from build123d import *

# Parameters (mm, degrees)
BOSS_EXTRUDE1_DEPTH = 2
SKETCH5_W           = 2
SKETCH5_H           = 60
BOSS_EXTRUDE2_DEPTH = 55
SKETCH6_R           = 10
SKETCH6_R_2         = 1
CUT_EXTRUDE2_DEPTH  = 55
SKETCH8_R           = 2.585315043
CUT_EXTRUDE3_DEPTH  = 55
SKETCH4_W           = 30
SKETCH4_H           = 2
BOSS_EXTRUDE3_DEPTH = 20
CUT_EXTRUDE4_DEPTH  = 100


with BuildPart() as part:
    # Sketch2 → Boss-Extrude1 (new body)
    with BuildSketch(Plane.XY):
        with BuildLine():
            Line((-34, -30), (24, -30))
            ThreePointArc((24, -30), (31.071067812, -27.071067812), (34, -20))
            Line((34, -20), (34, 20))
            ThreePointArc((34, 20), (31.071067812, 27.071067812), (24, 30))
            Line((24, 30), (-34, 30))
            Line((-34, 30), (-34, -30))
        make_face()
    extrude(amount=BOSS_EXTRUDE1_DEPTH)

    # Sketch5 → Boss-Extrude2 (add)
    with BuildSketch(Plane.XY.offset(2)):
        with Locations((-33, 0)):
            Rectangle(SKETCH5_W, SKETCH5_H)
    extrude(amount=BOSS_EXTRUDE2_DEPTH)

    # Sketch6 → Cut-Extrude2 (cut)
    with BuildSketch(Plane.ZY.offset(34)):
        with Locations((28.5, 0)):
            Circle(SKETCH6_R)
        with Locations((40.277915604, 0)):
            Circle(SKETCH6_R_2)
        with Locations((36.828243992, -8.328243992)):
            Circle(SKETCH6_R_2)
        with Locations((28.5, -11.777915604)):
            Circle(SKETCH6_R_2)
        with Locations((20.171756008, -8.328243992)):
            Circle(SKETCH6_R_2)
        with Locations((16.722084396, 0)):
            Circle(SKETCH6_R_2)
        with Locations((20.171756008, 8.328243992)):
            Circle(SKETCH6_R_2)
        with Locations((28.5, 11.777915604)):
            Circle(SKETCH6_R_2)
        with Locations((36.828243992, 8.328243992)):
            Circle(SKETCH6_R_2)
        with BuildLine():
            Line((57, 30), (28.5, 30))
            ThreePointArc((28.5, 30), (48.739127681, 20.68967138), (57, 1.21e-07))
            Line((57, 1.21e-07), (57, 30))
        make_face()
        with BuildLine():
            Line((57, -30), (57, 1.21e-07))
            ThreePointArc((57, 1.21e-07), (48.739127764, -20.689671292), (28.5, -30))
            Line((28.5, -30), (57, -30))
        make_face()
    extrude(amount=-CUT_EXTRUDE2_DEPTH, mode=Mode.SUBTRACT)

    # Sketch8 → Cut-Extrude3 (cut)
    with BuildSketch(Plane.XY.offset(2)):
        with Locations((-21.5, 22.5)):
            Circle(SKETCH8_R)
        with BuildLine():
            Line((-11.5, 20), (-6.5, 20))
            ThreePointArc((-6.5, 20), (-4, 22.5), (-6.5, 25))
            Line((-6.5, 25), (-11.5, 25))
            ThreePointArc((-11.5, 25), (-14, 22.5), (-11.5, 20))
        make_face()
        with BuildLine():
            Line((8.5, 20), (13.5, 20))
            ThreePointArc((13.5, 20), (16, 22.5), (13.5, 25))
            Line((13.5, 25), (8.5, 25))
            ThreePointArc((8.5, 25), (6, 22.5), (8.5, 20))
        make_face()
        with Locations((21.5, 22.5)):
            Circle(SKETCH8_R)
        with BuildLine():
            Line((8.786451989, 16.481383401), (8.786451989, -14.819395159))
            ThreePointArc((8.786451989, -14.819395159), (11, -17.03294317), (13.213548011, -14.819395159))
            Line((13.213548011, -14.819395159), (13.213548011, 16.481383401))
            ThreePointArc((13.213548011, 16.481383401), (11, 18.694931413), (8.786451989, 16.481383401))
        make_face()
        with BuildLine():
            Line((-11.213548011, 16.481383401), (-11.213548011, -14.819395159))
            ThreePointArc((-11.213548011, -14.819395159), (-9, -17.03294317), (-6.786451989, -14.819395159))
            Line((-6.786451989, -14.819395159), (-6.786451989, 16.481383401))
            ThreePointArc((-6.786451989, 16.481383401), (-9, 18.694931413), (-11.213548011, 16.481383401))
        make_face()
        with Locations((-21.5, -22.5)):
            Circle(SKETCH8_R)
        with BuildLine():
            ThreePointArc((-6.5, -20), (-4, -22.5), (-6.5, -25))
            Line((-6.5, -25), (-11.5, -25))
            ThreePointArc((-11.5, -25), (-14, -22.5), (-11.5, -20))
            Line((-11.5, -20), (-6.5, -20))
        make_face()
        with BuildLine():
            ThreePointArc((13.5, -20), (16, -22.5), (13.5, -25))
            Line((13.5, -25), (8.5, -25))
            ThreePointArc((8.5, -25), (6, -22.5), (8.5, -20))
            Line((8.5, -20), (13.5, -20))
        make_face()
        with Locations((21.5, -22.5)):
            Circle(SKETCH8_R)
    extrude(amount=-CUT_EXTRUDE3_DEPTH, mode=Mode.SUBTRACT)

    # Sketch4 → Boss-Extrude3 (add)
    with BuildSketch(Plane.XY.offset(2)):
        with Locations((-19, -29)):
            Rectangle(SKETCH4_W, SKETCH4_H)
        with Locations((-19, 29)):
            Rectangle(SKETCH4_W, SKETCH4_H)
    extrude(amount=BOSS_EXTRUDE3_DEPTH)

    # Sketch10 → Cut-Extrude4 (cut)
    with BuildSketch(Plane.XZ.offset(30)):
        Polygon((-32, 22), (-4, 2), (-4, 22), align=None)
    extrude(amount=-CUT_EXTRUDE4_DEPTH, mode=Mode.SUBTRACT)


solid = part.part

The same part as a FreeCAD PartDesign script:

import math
import FreeCAD as App
import Part
import Sketcher

V = App.Vector

doc = App.newDocument("Part")
body = doc.addObject("PartDesign::Body", "Body")

# Sketch on XY plane
sketch1 = body.newObject("Sketcher::SketchObject", "Sketch")
sketch1.AttachmentSupport = (doc.getObject("XY_Plane"), [""])
sketch1.MapMode = "FlatFace"
sketch1.addGeometry([
    Part.LineSegment(V(-34, -30, 0), V(24, -30, 0)),  # 0
    Part.ArcOfCircle(Part.Circle(V(24, -20, 0), V(0, 0, 1), 10), math.radians(-90), math.radians(0)),  # 1
    Part.LineSegment(V(34, -20, 0), V(34, 20, 0)),  # 2
    Part.ArcOfCircle(Part.Circle(V(24, 20, 0), V(0, 0, 1), 10), math.radians(0), math.radians(90)),  # 3
    Part.LineSegment(V(24, 30, 0), V(-34, 30, 0)),  # 4
    Part.LineSegment(V(-34, 30, 0), V(-34, -30, 0)),  # 5
], False)
sketch1.addConstraint([
    Sketcher.Constraint("Tangent", 0, 2, 1, 1),
    Sketcher.Constraint("Tangent", 1, 2, 2, 1),
    Sketcher.Constraint("Tangent", 2, 2, 3, 1),
    Sketcher.Constraint("Tangent", 3, 2, 4, 1),
    Sketcher.Constraint("Coincident", 4, 2, 5, 1),
    Sketcher.Constraint("Coincident", 5, 2, 0, 1),
    Sketcher.Constraint("Horizontal", 0),
    Sketcher.Constraint("Vertical", 2),
    Sketcher.Constraint("Horizontal", 4),
    Sketcher.Constraint("Vertical", 5),
    Sketcher.Constraint("Equal", 1, 3),
    Sketcher.Constraint("Radius", 1, 10.0),
    Sketcher.Constraint("DistanceX", 0, 1, 0, 2, 58.0),
    Sketcher.Constraint("DistanceY", 2, 1, 2, 2, 40.0),
    Sketcher.Constraint("DistanceX", -1, 1, 1, 3, 24.0),
    Sketcher.Constraint("DistanceY", 1, 3, -1, 1, 20.0),
])
pad1 = body.newObject("PartDesign::Pad", "Pad")
pad1.Profile = sketch1
pad1.Length = 2

# Sketch on XY plane
sketch2 = body.newObject("Sketcher::SketchObject", "Sketch001")
sketch2.AttachmentSupport = (doc.getObject("XY_Plane"), [""])
sketch2.MapMode = "FlatFace"
sketch2.AttachmentOffset = App.Placement(V(0, 0, 2), App.Rotation())
sketch2.addGeometry([
    Part.LineSegment(V(-34, 30, 0), V(-34, -30, 0)),
    Part.LineSegment(V(-34, -30, 0), V(-32, -30, 0)),
    Part.LineSegment(V(-32, -30, 0), V(-32, 30, 0)),
    Part.LineSegment(V(-32, 30, 0), V(-34, 30, 0)),
], False)
sketch2.addConstraint([
    Sketcher.Constraint("Coincident", 0, 2, 1, 1),
    Sketcher.Constraint("Coincident", 1, 2, 2, 1),
    Sketcher.Constraint("Coincident", 2, 2, 3, 1),
    Sketcher.Constraint("Coincident", 3, 2, 0, 1),
    Sketcher.Constraint("Vertical", 0),
    Sketcher.Constraint("Horizontal", 1),
    Sketcher.Constraint("Vertical", 2),
    Sketcher.Constraint("Horizontal", 3),
    Sketcher.Constraint("DistanceX", 1, 1, 1, 2, 2.0),
    Sketcher.Constraint("DistanceY", 0, 2, 0, 1, 60.0),
    Sketcher.Constraint("DistanceX", 0, 2, -1, 1, 34.0),
    Sketcher.Constraint("DistanceY", 0, 2, -1, 1, 30.0),
])
pad2 = body.newObject("PartDesign::Pad", "Pad001")
pad2.Profile = sketch2
pad2.Length = 55

# Sketch on YZ plane
sketch3 = body.newObject("Sketcher::SketchObject", "Sketch002")
sketch3.AttachmentSupport = (doc.getObject("YZ_Plane"), [""])
sketch3.MapMode = "FlatFace"
sketch3.AttachmentOffset = App.Placement(V(0, 0, -34), App.Rotation())
sketch3.addGeometry([
    Part.Circle(V(0, 28.5, 0), V(0, 0, 1), 10),  # 0
    Part.Circle(V(0, 40.3, 0), V(0, 0, 1), 1),  # 1
    Part.Circle(V(-8.3, 36.8, 0), V(0, 0, 1), 1),  # 2
    Part.Circle(V(-11.8, 28.5, 0), V(0, 0, 1), 1),  # 3
    Part.Circle(V(-8.3, 20.2, 0), V(0, 0, 1), 1),  # 4
    Part.Circle(V(0, 16.7, 0), V(0, 0, 1), 1),  # 5
    Part.Circle(V(8.3, 20.2, 0), V(0, 0, 1), 1),  # 6
    Part.Circle(V(11.8, 28.5, 0), V(0, 0, 1), 1),  # 7
    Part.Circle(V(8.3, 36.8, 0), V(0, 0, 1), 1),  # 8
    Part.LineSegment(V(30, 57, 0), V(30, 28.5, 0)),  # 9
    Part.ArcOfCircle(Part.Circle(V(0, 27, 0), V(0, 0, 1), 30), math.radians(3), math.radians(90)),  # 10
    Part.LineSegment(V(0, 57, 0), V(30, 57, 0)),  # 11
    Part.LineSegment(V(-30, 57, 0), V(0, 57, 0)),  # 12
    Part.ArcOfCircle(Part.Circle(V(0, 27, 0), V(0, 0, 1), 30), math.radians(90), math.radians(177)),  # 13
    Part.LineSegment(V(-30, 28.5, 0), V(-30, 57, 0)),  # 14
], False)
sketch3.addConstraint([
    Sketcher.Constraint("Coincident", 9, 2, 10, 1),
    Sketcher.Constraint("Tangent", 10, 2, 11, 1),
    Sketcher.Constraint("Coincident", 11, 2, 9, 1),
    Sketcher.Constraint("Tangent", 12, 2, 13, 1),
    Sketcher.Constraint("Coincident", 13, 2, 14, 1),
    Sketcher.Constraint("Coincident", 14, 2, 12, 1),
    Sketcher.Constraint("Vertical", 9),
    Sketcher.Constraint("Horizontal", 11),
    Sketcher.Constraint("Horizontal", 12),
    Sketcher.Constraint("Vertical", 14),
    Sketcher.Constraint("Coincident", 13, 3, 10, 3),
    Sketcher.Constraint("Equal", 1, 2),
    Sketcher.Constraint("Equal", 2, 3),
    Sketcher.Constraint("Equal", 3, 4),
    Sketcher.Constraint("Equal", 4, 5),
    Sketcher.Constraint("Equal", 5, 6),
    Sketcher.Constraint("Equal", 6, 7),
    Sketcher.Constraint("Equal", 7, 8),
    Sketcher.Constraint("Equal", 10, 13),
    Sketcher.Constraint("Symmetric", 4, 3, 6, 3, -2),
    Sketcher.Constraint("Symmetric", 3, 3, 7, 3, -2),
    Sketcher.Constraint("Symmetric", 2, 3, 8, 3, -2),
    Sketcher.Constraint("Symmetric", 9, 2, 13, 2, -2),
    Sketcher.Constraint("PointOnObject", 0, 3, -2),
    Sketcher.Constraint("PointOnObject", 1, 3, -2),
    Sketcher.Constraint("PointOnObject", 5, 3, -2),
    Sketcher.Constraint("Horizontal", 0, 3, 3, 3),
    Sketcher.Constraint("Horizontal", 7, 3, 9, 2),
    Sketcher.Constraint("Vertical", 2, 3, 4, 3),
    Sketcher.Constraint("Diameter", 0, 20.0),
    Sketcher.Constraint("Diameter", 1, 2.0),
    Sketcher.Constraint("DistanceX", 11, 1, 11, 2, 30.0),
    Sketcher.Constraint("DistanceY", 9, 2, 9, 1, 28.5),
    Sketcher.Constraint("DistanceY", -1, 1, 10, 2, 57.0),
    Sketcher.Constraint("DistanceY", 2, 3, 1, 3, 3.449672),
    Sketcher.Constraint("DistanceX", 3, 3, 2, 3, 3.449672),
    Sketcher.Constraint("DistanceY", 4, 3, 1, 3, 20.10616),
    Sketcher.Constraint("DistanceY", 5, 3, 4, 3, 3.449672),
    Sketcher.Constraint("DistanceX", 3, 3, 6, 3, 20.10616),
    Sketcher.Constraint("DistanceY", 5, 3, 10, 3, 10.238442),
])
pocket1 = body.newObject("PartDesign::Pocket", "Pocket")
pocket1.Profile = sketch3
pocket1.Length = 55
pocket1.Reversed = True

# Sketch on XY plane
sketch4 = body.newObject("Sketcher::SketchObject", "Sketch003")
sketch4.AttachmentSupport = (doc.getObject("XY_Plane"), [""])
sketch4.MapMode = "FlatFace"
sketch4.AttachmentOffset = App.Placement(V(0, 0, 2), App.Rotation())
sketch4.addGeometry([
    Part.Circle(V(-21.5, 22.5, 0), V(0, 0, 1), 2.6),  # 0
    Part.LineSegment(V(-11.5, 20, 0), V(-6.5, 20, 0)),  # 1
    Part.ArcOfCircle(Part.Circle(V(-6.5, 22.5, 0), V(0, 0, 1), 2.5), math.radians(-90), math.radians(90)),  # 2
    Part.LineSegment(V(-6.5, 25, 0), V(-11.5, 25, 0)),  # 3
    Part.ArcOfCircle(Part.Circle(V(-11.5, 22.5, 0), V(0, 0, 1), 2.5), math.radians(90), math.radians(270)),  # 4
    Part.LineSegment(V(8.5, 20, 0), V(13.5, 20, 0)),  # 5
    Part.ArcOfCircle(Part.Circle(V(13.5, 22.5, 0), V(0, 0, 1), 2.5), math.radians(-90), math.radians(90)),  # 6
    Part.LineSegment(V(13.5, 25, 0), V(8.5, 25, 0)),  # 7
    Part.ArcOfCircle(Part.Circle(V(8.5, 22.5, 0), V(0, 0, 1), 2.5), math.radians(90), math.radians(270)),  # 8
    Part.Circle(V(21.5, 22.5, 0), V(0, 0, 1), 2.6),  # 9
    Part.LineSegment(V(8.8, 16.5, 0), V(8.8, -14.8, 0)),  # 10
    Part.ArcOfCircle(Part.Circle(V(11, -14.8, 0), V(0, 0, 1), 2.2), math.radians(180), math.radians(360)),  # 11
    Part.LineSegment(V(13.2, -14.8, 0), V(13.2, 16.5, 0)),  # 12
    Part.ArcOfCircle(Part.Circle(V(11, 16.5, 0), V(0, 0, 1), 2.2), math.radians(0), math.radians(180)),  # 13
    Part.LineSegment(V(-11.2, 16.5, 0), V(-11.2, -14.8, 0)),  # 14
    Part.ArcOfCircle(Part.Circle(V(-9, -14.8, 0), V(0, 0, 1), 2.2), math.radians(180), math.radians(360)),  # 15
    Part.LineSegment(V(-6.8, -14.8, 0), V(-6.8, 16.5, 0)),  # 16
    Part.ArcOfCircle(Part.Circle(V(-9, 16.5, 0), V(0, 0, 1), 2.2), math.radians(0), math.radians(180)),  # 17
    Part.Circle(V(-21.5, -22.5, 0), V(0, 0, 1), 2.6),  # 18
    Part.ArcOfCircle(Part.Circle(V(-6.5, -22.5, 0), V(0, 0, 1), 2.5), math.radians(-90), math.radians(90)),  # 19
    Part.LineSegment(V(-6.5, -20, 0), V(-11.5, -20, 0)),  # 20
    Part.ArcOfCircle(Part.Circle(V(-11.5, -22.5, 0), V(0, 0, 1), 2.5), math.radians(90), math.radians(270)),  # 21
    Part.LineSegment(V(-11.5, -25, 0), V(-6.5, -25, 0)),  # 22
    Part.ArcOfCircle(Part.Circle(V(13.5, -22.5, 0), V(0, 0, 1), 2.5), math.radians(-90), math.radians(90)),  # 23
    Part.LineSegment(V(13.5, -20, 0), V(8.5, -20, 0)),  # 24
    Part.ArcOfCircle(Part.Circle(V(8.5, -22.5, 0), V(0, 0, 1), 2.5), math.radians(90), math.radians(270)),  # 25
    Part.LineSegment(V(8.5, -25, 0), V(13.5, -25, 0)),  # 26
    Part.Circle(V(21.5, -22.5, 0), V(0, 0, 1), 2.6),  # 27
], False)
sketch4.addConstraint([
    Sketcher.Constraint("Tangent", 1, 2, 2, 1),
    Sketcher.Constraint("Tangent", 2, 2, 3, 1),
    Sketcher.Constraint("Tangent", 3, 2, 4, 1),
    Sketcher.Constraint("Tangent", 4, 2, 1, 1),
    Sketcher.Constraint("Tangent", 5, 2, 6, 1),
    Sketcher.Constraint("Tangent", 6, 2, 7, 1),
    Sketcher.Constraint("Tangent", 7, 2, 8, 1),
    Sketcher.Constraint("Tangent", 8, 2, 5, 1),
    Sketcher.Constraint("Tangent", 10, 2, 11, 1),
    Sketcher.Constraint("Tangent", 11, 2, 12, 1),
    Sketcher.Constraint("Tangent", 12, 2, 13, 1),
    Sketcher.Constraint("Tangent", 13, 2, 10, 1),
    Sketcher.Constraint("Tangent", 14, 2, 15, 1),
    Sketcher.Constraint("Tangent", 15, 2, 16, 1),
    Sketcher.Constraint("Tangent", 16, 2, 17, 1),
    Sketcher.Constraint("Tangent", 17, 2, 14, 1),
    Sketcher.Constraint("Tangent", 19, 2, 20, 1),
    Sketcher.Constraint("Tangent", 20, 2, 21, 1),
    Sketcher.Constraint("Tangent", 21, 2, 22, 1),
    Sketcher.Constraint("Tangent", 22, 2, 19, 1),
    Sketcher.Constraint("Tangent", 23, 2, 24, 1),
    Sketcher.Constraint("Tangent", 24, 2, 25, 1),
    Sketcher.Constraint("Tangent", 25, 2, 26, 1),
    Sketcher.Constraint("Tangent", 26, 2, 23, 1),
    Sketcher.Constraint("Horizontal", 1),
    Sketcher.Constraint("Horizontal", 3),
    Sketcher.Constraint("Horizontal", 5),
    Sketcher.Constraint("Horizontal", 7),
    Sketcher.Constraint("Vertical", 10),
    Sketcher.Constraint("Vertical", 12),
    Sketcher.Constraint("Vertical", 14),
    Sketcher.Constraint("Vertical", 16),
    Sketcher.Constraint("Horizontal", 20),
    Sketcher.Constraint("Horizontal", 22),
    Sketcher.Constraint("Horizontal", 24),
    Sketcher.Constraint("Horizontal", 26),
    Sketcher.Constraint("Equal", 4, 6),
    Sketcher.Constraint("Equal", 0, 9),
    Sketcher.Constraint("Equal", 13, 15),
    Sketcher.Constraint("Equal", 9, 18),
    Sketcher.Constraint("Equal", 8, 19),
    Sketcher.Constraint("Equal", 21, 23),
    Sketcher.Constraint("Equal", 18, 27),
    Sketcher.Constraint("Symmetric", 9, 3, 18, 3, -1, 1),
    Sketcher.Constraint("Symmetric", 0, 3, 27, 3, -1, 1),
    Sketcher.Constraint("Symmetric", 0, 3, 9, 3, -2),
    Sketcher.Constraint("Symmetric", 2, 3, 19, 3, -1),
    Sketcher.Constraint("Symmetric", 6, 3, 23, 3, -1),
    Sketcher.Constraint("Horizontal", 0, 3, 2, 3),
    Sketcher.Constraint("Horizontal", 4, 3, 6, 3),
    Sketcher.Constraint("Horizontal", 11, 3, 15, 3),
    Sketcher.Constraint("Horizontal", 13, 3, 17, 3),
    Sketcher.Constraint("Vertical", 4, 3, 21, 3),
    Sketcher.Constraint("Vertical", 8, 3, 25, 3),
    Sketcher.Constraint("Equal", 3, 5),
    Sketcher.Constraint("Radius", 2, 2.5),
    Sketcher.Constraint("DistanceX", 1, 1, 1, 2, 5.0),
    Sketcher.Constraint("DistanceX", -1, 1, 11, 3, 11.0),
    Sketcher.Constraint("DistanceX", 15, 3, -1, 1, 9.0),
    Sketcher.Constraint("DistanceY", -1, 1, 1, 2, 20.0),
    Sketcher.Constraint("DistanceX", 0, 3, 2, 3, 15.0),
    Sketcher.Constraint("DistanceX", 2, 3, 6, 3, 20.0),
    Sketcher.Constraint("DistanceX", 6, 3, 9, 3, 8.0),
    Sketcher.Constraint("Diameter", 0, 5.17063),
    Sketcher.Constraint("Radius", 11, 2.213548),
    Sketcher.Constraint("DistanceY", 10, 2, 10, 1, 31.300779),
    Sketcher.Constraint("DistanceY", 11, 3, -1, 1, 14.819395),
])
pocket2 = body.newObject("PartDesign::Pocket", "Pocket001")
pocket2.Profile = sketch4
pocket2.Length = 55

# Sketch on XY plane
sketch5 = body.newObject("Sketcher::SketchObject", "Sketch004")
sketch5.AttachmentSupport = (doc.getObject("XY_Plane"), [""])
sketch5.MapMode = "FlatFace"
sketch5.AttachmentOffset = App.Placement(V(0, 0, 2), App.Rotation())
sketch5.addGeometry([
    Part.LineSegment(V(-34, -28, 0), V(-34, -30, 0)),  # 0
    Part.LineSegment(V(-34, -30, 0), V(-4, -30, 0)),  # 1
    Part.LineSegment(V(-4, -30, 0), V(-4, -28, 0)),  # 2
    Part.LineSegment(V(-4, -28, 0), V(-34, -28, 0)),  # 3
    Part.LineSegment(V(-34, 30, 0), V(-34, 28, 0)),  # 4
    Part.LineSegment(V(-34, 28, 0), V(-4, 28, 0)),  # 5
    Part.LineSegment(V(-4, 28, 0), V(-4, 30, 0)),  # 6
    Part.LineSegment(V(-4, 30, 0), V(-34, 30, 0)),  # 7
], False)
sketch5.addConstraint([
    Sketcher.Constraint("Coincident", 0, 2, 1, 1),
    Sketcher.Constraint("Coincident", 1, 2, 2, 1),
    Sketcher.Constraint("Coincident", 2, 2, 3, 1),
    Sketcher.Constraint("Coincident", 3, 2, 0, 1),
    Sketcher.Constraint("Coincident", 4, 2, 5, 1),
    Sketcher.Constraint("Coincident", 5, 2, 6, 1),
    Sketcher.Constraint("Coincident", 6, 2, 7, 1),
    Sketcher.Constraint("Coincident", 7, 2, 4, 1),
    Sketcher.Constraint("Vertical", 0),
    Sketcher.Constraint("Horizontal", 1),
    Sketcher.Constraint("Vertical", 2),
    Sketcher.Constraint("Horizontal", 3),
    Sketcher.Constraint("Vertical", 4),
    Sketcher.Constraint("Horizontal", 5),
    Sketcher.Constraint("Vertical", 6),
    Sketcher.Constraint("Horizontal", 7),
    Sketcher.Constraint("Symmetric", 3, 2, 4, 2, -1),
    Sketcher.Constraint("Symmetric", 1, 2, 6, 2, -1),
    Sketcher.Constraint("DistanceX", 1, 1, 1, 2, 30.0),
    Sketcher.Constraint("DistanceY", 0, 2, 0, 1, 2.0),
    Sketcher.Constraint("DistanceX", 0, 2, -1, 1, 34.0),
    Sketcher.Constraint("DistanceY", 0, 2, -1, 1, 30.0),
])
pad3 = body.newObject("PartDesign::Pad", "Pad002")
pad3.Profile = sketch5
pad3.Length = 20

# Sketch on XZ plane
sketch6 = body.newObject("Sketcher::SketchObject", "Sketch005")
sketch6.AttachmentSupport = (doc.getObject("XZ_Plane"), [""])
sketch6.MapMode = "FlatFace"
sketch6.AttachmentOffset = App.Placement(V(0, 0, 30), App.Rotation())
sketch6.addGeometry([
    Part.LineSegment(V(-32, 22, 0), V(-4, 2, 0)),
    Part.LineSegment(V(-4, 2, 0), V(-4, 22, 0)),
    Part.LineSegment(V(-4, 22, 0), V(-32, 22, 0)),
], False)
sketch6.addConstraint([
    Sketcher.Constraint("Coincident", 0, 2, 1, 1),
    Sketcher.Constraint("Coincident", 1, 2, 2, 1),
    Sketcher.Constraint("Coincident", 2, 2, 0, 1),
    Sketcher.Constraint("Vertical", 1),
    Sketcher.Constraint("Horizontal", 2),
    Sketcher.Constraint("DistanceX", 2, 2, 2, 1, 28.0),
    Sketcher.Constraint("DistanceY", 1, 1, 1, 2, 20.0),
    Sketcher.Constraint("DistanceX", 0, 2, -1, 1, 4.0),
    Sketcher.Constraint("DistanceY", -1, 1, 0, 2, 2.0),
])
pocket3 = body.newObject("PartDesign::Pocket", "Pocket002")
pocket3.Profile = sketch6
pocket3.Length = 100

doc.recompute()
